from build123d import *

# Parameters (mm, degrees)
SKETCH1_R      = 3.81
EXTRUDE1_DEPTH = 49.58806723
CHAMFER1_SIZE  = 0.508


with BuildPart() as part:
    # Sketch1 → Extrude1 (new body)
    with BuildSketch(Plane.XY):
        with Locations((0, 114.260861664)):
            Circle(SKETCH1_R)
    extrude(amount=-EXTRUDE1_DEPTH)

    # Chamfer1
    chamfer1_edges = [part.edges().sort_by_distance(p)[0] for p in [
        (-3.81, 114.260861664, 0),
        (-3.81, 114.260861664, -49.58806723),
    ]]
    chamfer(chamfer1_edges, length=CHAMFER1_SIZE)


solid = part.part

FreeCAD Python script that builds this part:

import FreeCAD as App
import Part
import Sketcher
from FreeCAD import Vector
Q = App.Units.Quantity


def edges_at(feature, points):
    """Names of the edges that pass closest to the given points."""
    edges = feature.Shape.Edges
    near = lambda p: min(range(len(edges)), key=lambda i: edges[i].distToShape(Part.Vertex(*p))[0])
    return sorted({f"Edge{near(p) + 1}" for p in points})

doc = App.newDocument("Part")
params = doc.addObject("Spreadsheet::Sheet", "Params")
for row, (alias, value) in enumerate([
    ("sketch1_diameter", "0.3 in"),
    ("pad1_length", "49.588067 mm"),
    ("chamfer_size", "0.02 in"),
], start=1):
    params.set(f"A{row}", alias)
    params.set(f"B{row}", "=" + value)
    params.setAlias(f"B{row}", alias)

body = doc.addObject("PartDesign::Body", "Body")

# Sketch on XY plane
sketch1 = doc.addObject("Sketcher::SketchObject", "Sketch")
body.addObject(sketch1)
sketch1.AttachmentSupport = (doc.XY_Plane, [""])
sketch1.MapMode = "FlatFace"
sketch1.addGeometry(Part.Circle(Vector(0, 114.3, 0), Vector(0, 0, 1), 3.8), False)
sketch1.addConstraint([
    Sketcher.Constraint("PointOnObject", 0, 3, -2),
    Sketcher.Constraint("Diameter", 0, Q("0.3 in")),
    Sketcher.Constraint("DistanceY", -1, 1, 0, 3, Q("114.260862 mm")),
])
sketch1.setExpression("Constraints[1]", "Params.sketch1_diameter")
pad1 = doc.addObject("PartDesign::Pad", "Pad")
body.addObject(pad1)
pad1.Profile = sketch1
pad1.setExpression("Length", "Params.pad1_length")
pad1.Reversed = True
doc.recompute()

chamfer = doc.addObject("PartDesign::Chamfer", "Chamfer")
body.addObject(chamfer)
chamfer.Base = (pad1, edges_at(pad1, [(-3.81, 114.261, 0), (-3.81, 114.261, -49.588)]))
chamfer.setExpression("Size", "Params.chamfer_size")

doc.recompute()
